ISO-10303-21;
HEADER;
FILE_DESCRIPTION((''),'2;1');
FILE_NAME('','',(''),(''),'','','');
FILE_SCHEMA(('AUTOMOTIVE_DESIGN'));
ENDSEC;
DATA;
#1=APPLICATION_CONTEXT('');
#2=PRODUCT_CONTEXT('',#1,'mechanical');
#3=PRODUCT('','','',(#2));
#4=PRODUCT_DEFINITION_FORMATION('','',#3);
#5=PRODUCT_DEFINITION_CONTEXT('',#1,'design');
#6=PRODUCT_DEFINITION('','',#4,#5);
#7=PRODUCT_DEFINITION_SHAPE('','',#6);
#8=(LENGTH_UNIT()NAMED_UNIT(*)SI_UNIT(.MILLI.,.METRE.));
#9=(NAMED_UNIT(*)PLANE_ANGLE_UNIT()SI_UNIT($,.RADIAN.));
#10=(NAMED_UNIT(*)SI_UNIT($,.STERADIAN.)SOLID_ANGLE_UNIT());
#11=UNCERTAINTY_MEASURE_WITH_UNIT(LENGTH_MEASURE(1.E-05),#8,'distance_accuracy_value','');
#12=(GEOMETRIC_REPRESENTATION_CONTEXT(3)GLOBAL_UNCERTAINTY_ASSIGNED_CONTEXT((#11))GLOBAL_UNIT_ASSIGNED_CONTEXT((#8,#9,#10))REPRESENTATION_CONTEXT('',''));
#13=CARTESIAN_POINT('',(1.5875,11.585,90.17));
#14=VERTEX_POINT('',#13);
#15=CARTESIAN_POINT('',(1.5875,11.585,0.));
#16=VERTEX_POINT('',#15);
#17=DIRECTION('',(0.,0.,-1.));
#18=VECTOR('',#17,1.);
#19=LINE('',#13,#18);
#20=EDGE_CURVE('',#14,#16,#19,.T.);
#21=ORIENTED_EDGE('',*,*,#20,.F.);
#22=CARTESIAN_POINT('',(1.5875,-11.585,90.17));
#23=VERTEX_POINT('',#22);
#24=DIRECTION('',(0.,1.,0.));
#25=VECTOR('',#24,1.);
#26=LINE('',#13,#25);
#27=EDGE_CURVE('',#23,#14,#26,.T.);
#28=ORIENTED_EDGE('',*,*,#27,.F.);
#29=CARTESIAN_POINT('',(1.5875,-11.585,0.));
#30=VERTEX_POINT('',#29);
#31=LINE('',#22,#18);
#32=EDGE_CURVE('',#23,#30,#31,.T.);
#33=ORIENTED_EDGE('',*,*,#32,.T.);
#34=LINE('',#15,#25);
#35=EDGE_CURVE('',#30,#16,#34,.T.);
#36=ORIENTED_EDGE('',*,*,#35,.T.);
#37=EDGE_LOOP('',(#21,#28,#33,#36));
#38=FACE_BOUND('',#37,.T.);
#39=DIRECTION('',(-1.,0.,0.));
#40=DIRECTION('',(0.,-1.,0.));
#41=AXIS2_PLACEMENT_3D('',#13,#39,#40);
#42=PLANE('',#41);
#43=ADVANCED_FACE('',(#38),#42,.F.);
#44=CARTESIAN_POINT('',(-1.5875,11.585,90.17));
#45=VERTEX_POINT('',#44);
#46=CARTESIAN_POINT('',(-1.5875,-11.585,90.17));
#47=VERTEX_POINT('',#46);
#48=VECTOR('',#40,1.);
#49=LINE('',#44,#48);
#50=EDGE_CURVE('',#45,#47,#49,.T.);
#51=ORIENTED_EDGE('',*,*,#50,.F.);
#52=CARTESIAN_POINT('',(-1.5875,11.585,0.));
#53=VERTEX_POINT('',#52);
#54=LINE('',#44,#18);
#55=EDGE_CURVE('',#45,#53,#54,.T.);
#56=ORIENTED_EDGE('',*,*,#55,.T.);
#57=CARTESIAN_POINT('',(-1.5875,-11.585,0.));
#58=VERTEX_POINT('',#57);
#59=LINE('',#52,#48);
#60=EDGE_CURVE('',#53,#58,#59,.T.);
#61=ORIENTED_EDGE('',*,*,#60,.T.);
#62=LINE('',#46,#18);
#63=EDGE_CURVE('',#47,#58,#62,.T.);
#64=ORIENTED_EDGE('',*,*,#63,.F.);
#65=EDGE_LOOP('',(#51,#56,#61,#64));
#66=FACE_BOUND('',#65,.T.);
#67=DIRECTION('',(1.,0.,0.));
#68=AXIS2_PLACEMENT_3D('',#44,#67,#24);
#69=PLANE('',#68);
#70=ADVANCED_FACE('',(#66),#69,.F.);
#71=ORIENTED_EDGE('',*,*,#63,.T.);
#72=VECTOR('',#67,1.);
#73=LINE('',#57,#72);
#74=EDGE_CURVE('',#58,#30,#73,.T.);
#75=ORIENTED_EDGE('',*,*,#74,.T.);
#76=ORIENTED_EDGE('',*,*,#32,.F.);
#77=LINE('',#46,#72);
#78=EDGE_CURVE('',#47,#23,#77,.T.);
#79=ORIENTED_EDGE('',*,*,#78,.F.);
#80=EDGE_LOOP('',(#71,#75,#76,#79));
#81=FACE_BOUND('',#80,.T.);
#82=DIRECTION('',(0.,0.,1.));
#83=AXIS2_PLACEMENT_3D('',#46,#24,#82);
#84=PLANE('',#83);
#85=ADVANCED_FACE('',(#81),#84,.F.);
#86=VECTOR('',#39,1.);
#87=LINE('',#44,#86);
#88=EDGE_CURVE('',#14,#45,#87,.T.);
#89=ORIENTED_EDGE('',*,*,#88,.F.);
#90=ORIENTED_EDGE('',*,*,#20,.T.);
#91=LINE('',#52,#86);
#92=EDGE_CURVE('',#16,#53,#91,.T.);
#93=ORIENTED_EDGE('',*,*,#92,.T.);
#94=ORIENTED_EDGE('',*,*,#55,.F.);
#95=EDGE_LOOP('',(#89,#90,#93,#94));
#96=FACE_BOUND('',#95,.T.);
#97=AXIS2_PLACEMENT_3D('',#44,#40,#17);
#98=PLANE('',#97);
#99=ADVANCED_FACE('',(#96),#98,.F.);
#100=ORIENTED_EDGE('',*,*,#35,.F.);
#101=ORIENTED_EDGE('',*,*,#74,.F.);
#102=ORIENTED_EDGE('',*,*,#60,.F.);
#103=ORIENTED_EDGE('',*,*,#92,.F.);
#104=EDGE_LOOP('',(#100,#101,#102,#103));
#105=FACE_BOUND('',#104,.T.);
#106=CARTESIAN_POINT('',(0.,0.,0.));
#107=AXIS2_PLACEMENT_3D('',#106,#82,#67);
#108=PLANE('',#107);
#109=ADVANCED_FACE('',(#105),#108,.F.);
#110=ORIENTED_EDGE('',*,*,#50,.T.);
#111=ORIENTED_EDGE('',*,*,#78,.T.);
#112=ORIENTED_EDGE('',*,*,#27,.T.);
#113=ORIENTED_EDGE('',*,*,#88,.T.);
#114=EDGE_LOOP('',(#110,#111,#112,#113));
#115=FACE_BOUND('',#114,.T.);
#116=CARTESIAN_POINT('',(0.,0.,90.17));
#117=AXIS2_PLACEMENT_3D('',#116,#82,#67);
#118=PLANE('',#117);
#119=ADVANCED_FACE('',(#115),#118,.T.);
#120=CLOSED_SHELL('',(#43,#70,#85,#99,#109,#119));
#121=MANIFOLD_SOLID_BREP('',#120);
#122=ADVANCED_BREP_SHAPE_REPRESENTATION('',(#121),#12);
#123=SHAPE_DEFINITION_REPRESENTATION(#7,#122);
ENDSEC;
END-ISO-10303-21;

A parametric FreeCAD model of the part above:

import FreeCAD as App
import Part
import Sketcher
Q = App.Units.Quantity


def add_polygon(sketch, points):
    """Adds a closed chain of lines whose ends are joined by coincident constraints."""
    first, n = sketch.GeometryCount, len(points)
    for a, b in zip(points, points[1:] + points[:1]):
        sketch.addGeometry(Part.LineSegment(App.Vector(*a, 0), App.Vector(*b, 0)), False)
    for i in range(n):
        sketch.addConstraint(Sketcher.Constraint("Coincident", first + i, 2, first + (i + 1) % n, 1))

doc = App.newDocument("Part")
params = doc.addObject("Spreadsheet::Sheet", "Params")
for row, (alias, value) in enumerate([
    ("sketch1_width", "0.125 in"),
    ("pad1_length", "3.55 in"),
], start=1):
    params.set(f"A{row}", alias)
    params.set(f"B{row}", "=" + value)
    params.setAlias(f"B{row}", alias)

body = doc.addObject("PartDesign::Body", "Body")

sketch1 = body.newObject("Sketcher::SketchObject", "Sketch")
sketch1.AttachmentSupport = (doc.getObject("XY_Plane"), [""])
sketch1.MapMode = "FlatFace"
add_polygon(sketch1, [(-1.6, 11.6), (-1.6, -11.6), (1.6, -11.6), (1.6, 11.6)])
sketch1.addConstraint([
    Sketcher.Constraint("Vertical", 0),
    Sketcher.Constraint("Horizontal", 1),
    Sketcher.Constraint("Vertical", 2),
    Sketcher.Constraint("Horizontal", 3),
    Sketcher.Constraint("Symmetric", 0, 2, 2, 2, -1, 1),
    Sketcher.Constraint("DistanceX", 1, 1, 1, 2, Q("0.125 in")),
    Sketcher.Constraint("DistanceY", 0, 2, 0, 1, 23.17),
])
sketch1.setExpression("Constraints[9]", "Params.sketch1_width")
pad1 = body.newObject("PartDesign::Pad", "Pad")
pad1.Profile = sketch1
pad1.setExpression("Length", "Params.pad1_length")

doc.recompute()
